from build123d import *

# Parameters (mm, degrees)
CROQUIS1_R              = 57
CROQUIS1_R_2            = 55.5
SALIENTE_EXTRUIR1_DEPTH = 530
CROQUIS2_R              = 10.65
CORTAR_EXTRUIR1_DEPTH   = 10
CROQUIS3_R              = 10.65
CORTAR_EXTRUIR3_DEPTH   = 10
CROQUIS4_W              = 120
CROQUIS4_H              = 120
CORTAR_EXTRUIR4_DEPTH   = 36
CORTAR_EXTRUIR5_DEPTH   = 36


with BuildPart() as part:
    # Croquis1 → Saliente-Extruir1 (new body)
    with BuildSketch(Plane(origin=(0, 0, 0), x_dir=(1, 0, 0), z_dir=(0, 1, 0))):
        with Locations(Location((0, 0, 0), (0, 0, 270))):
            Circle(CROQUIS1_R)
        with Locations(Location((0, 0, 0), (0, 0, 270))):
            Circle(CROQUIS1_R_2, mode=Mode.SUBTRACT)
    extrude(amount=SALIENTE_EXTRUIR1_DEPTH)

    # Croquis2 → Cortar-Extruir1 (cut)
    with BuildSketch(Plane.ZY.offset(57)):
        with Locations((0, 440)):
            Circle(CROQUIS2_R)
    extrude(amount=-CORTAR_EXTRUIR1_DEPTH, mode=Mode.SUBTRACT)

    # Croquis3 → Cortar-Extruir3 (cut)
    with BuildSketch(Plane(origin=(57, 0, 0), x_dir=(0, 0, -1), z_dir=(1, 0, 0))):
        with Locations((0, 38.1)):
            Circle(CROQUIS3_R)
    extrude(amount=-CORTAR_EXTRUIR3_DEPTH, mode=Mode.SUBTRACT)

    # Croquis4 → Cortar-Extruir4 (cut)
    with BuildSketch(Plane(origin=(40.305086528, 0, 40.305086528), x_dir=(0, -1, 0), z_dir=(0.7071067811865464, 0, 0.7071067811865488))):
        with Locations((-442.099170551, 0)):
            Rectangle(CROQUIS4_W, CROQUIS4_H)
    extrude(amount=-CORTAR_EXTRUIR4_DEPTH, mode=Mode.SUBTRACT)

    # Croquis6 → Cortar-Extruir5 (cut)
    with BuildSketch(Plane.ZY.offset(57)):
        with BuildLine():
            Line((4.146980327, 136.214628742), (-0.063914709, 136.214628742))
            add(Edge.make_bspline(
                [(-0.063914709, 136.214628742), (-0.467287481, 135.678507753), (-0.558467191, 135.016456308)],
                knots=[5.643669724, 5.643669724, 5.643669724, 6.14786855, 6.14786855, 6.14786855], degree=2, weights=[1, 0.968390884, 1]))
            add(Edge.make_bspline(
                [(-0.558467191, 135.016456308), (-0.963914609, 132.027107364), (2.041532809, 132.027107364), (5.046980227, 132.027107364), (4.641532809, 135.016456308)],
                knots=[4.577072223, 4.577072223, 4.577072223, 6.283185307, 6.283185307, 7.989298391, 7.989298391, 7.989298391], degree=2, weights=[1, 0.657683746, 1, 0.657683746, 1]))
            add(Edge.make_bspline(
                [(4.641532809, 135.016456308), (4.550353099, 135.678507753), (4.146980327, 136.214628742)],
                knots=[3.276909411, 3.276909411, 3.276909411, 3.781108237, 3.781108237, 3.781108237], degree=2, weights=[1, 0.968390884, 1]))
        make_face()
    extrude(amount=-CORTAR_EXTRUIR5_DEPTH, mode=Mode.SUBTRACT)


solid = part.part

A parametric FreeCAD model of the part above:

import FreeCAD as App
import Part
import Sketcher
from FreeCAD import Vector
Q = App.Units.Quantity


def add_polygon(sketch, points):
    """Adds a closed chain of lines whose ends are joined by coincident constraints."""
    first, n = sketch.GeometryCount, len(points)
    for a, b in zip(points, points[1:] + points[:1]):
        sketch.addGeometry(Part.LineSegment(App.Vector(*a, 0), App.Vector(*b, 0)), False)
    for i in range(n):
        sketch.addConstraint(Sketcher.Constraint("Coincident", first + i, 2, first + (i + 1) % n, 1))

doc = App.newDocument("Part")
params = doc.addObject("Spreadsheet::Sheet", "Params")
for row, (alias, value) in enumerate([
    ("sketch1_diameter", "114 mm"),
    ("sketch1_diameter2", "111 mm"),
    ("pad1_length", "530 mm"),
    ("sketch2_diameter", "21.3 mm"),
    ("pocket1_length", "10 mm"),
    ("sketch3_diameter", "21.3 mm"),
    ("pocket2_length", "10 mm"),
    ("sketch4_width", "120 mm"),
    ("pocket3_length", "36 mm"),
    ("pocket4_length", "36 mm"),
], start=1):
    params.set(f"A{row}", alias)
    params.set(f"B{row}", "=" + value)
    params.setAlias(f"B{row}", alias)

body = doc.addObject("PartDesign::Body", "Body")

# Sketch on XZ plane
sketch1 = body.newObject("Sketcher::SketchObject", "Sketch")
sketch1.AttachmentSupport = (doc.getObject("XZ_Plane"), [""])
sketch1.MapMode = "FlatFace"
sketch1.addGeometry([
    Part.Circle(Vector(0, 0, 0), Vector(0, 0, 1), 57),
    Part.Circle(Vector(0, 0, 0), Vector(0, 0, 1), 56),
], False)
sketch1.addConstraint([
    Sketcher.Constraint("Coincident", 0, 3, -1, 1),
    Sketcher.Constraint("Coincident", 1, 3, -1, 1),
    Sketcher.Constraint("Diameter", 0, Q("114 mm")),
    Sketcher.Constraint("Diameter", 1, Q("111 mm")),
])
sketch1.setExpression("Constraints[2]", "Params.sketch1_diameter")
sketch1.setExpression("Constraints[3]", "Params.sketch1_diameter2")
pad1 = body.newObject("PartDesign::Pad", "Pad")
pad1.Profile = sketch1
pad1.setExpression("Length", "Params.pad1_length")
pad1.Reversed = True

# Sketch on YZ plane
sketch2 = body.newObject("Sketcher::SketchObject", "Sketch001")
sketch2.AttachmentSupport = (doc.getObject("YZ_Plane"), [""])
sketch2.MapMode = "FlatFace"
sketch2.AttachmentOffset = App.Placement(Vector(0, 0, -57), App.Rotation())
sketch2.addGeometry(Part.Circle(Vector(440, 0, 0), Vector(0, 0, 1), 11), False)
sketch2.addConstraint([
    Sketcher.Constraint("PointOnObject", 0, 3, -1),
    Sketcher.Constraint("Diameter", 0, Q("21.3 mm")),
    Sketcher.Constraint("DistanceX", -1, 1, 0, 3, Q("440 mm")),
])
sketch2.setExpression("Constraints[1]", "Params.sketch2_diameter")
pocket1 = body.newObject("PartDesign::Pocket", "Pocket")
pocket1.Profile = sketch2
pocket1.setExpression("Length", "Params.pocket1_length")
pocket1.Reversed = True

# Sketch on YZ plane
sketch3 = body.newObject("Sketcher::SketchObject", "Sketch002")
sketch3.AttachmentSupport = (doc.getObject("YZ_Plane"), [""])
sketch3.MapMode = "FlatFace"
sketch3.AttachmentOffset = App.Placement(Vector(0, 0, 57), App.Rotation())
sketch3.addGeometry(Part.Circle(Vector(38, 0, 0), Vector(0, 0, 1), 11), False)
sketch3.addConstraint([
    Sketcher.Constraint("PointOnObject", 0, 3, -1),
    Sketcher.Constraint("Diameter", 0, Q("21.3 mm")),
    Sketcher.Constraint("DistanceX", -1, 1, 0, 3, Q("38.1 mm")),
])
sketch3.setExpression("Constraints[1]", "Params.sketch3_diameter")
pocket2 = body.newObject("PartDesign::Pocket", "Pocket001")
pocket2.Profile = sketch3
pocket2.setExpression("Length", "Params.pocket2_length")

# Sketch on an angled plane
sketch4 = body.newObject("Sketcher::SketchObject", "Sketch003")
sketch4.Placement = App.Placement(Vector(40.305087, 0, 40.305087), App.Rotation(Vector(0, -1, 0), Vector(0.707106781, 0, -0.707106781), Vector(0.707106781, 0, 0.707106781), "ZXY"))
add_polygon(sketch4, [(-502, 60), (-502, -60), (-382, -60), (-382, 60)])  # lines 0-3
sketch4.addConstraint([
    Sketcher.Constraint("Vertical", 0),
    Sketcher.Constraint("Horizontal", 1),
    Sketcher.Constraint("Vertical", 2),
    Sketcher.Constraint("Horizontal", 3),
    Sketcher.Constraint("Equal", 3, 0),
    Sketcher.Constraint("DistanceX", 1, 1, 1, 2, Q("120 mm")),
    Sketcher.Constraint("DistanceY", 0, 2, -1, 1, Q("60 mm")),
    Sketcher.Constraint("DistanceX", 0, 2, -1, 1, Q("502.099171 mm")),
])
sketch4.setExpression("Constraints[9]", "Params.sketch4_width")
pocket3 = body.newObject("PartDesign::Pocket", "Pocket002")
pocket3.Profile = sketch4
pocket3.setExpression("Length", "Params.pocket3_length")

# Sketch on YZ plane
sketch5 = body.newObject("Sketcher::SketchObject", "Sketch004")
sketch5.AttachmentSupport = (doc.getObject("YZ_Plane"), [""])
sketch5.MapMode = "FlatFace"
sketch5.AttachmentOffset = App.Placement(Vector(0, 0, -57), App.Rotation())
sketch5.addGeometry([
    Part.LineSegment(Vector(136.214629, 4.14698, 0), Vector(136.214629, -0.063915, 0)),
    Part.BSplineCurve([Vector(136.214629, -0.063915, 0), Vector(135.678508, -0.467287, 0), Vector(135.016456, -0.558467, 0)], [3, 3], [5.643669724, 6.14786855], False, 2, [1, 0.968390884, 1], False),
    Part.BSplineCurve([Vector(135.016456, -0.558467, 0), Vector(132.027107, -0.963915, 0), Vector(132.027107, 2.041533, 0), Vector(132.027107, 5.04698, 0), Vector(135.016456, 4.641533, 0)], [3, 2, 3], [4.577072223, 6.283185307, 7.989298391], False, 2, [1, 0.657683746, 1, 0.657683746, 1], False),
    Part.BSplineCurve([Vector(135.016456, 4.641533, 0), Vector(135.678508, 4.550353, 0), Vector(136.214629, 4.14698, 0)], [3, 3], [3.276909411, 3.781108237], False, 2, [1, 0.968390884, 1], False),
], False)
sketch5.addConstraint([
    Sketcher.Constraint("Block", 1),
    Sketcher.Constraint("Block", 2),
    Sketcher.Constraint("Block", 3),
    Sketcher.Constraint("Coincident", 0, 2, 1, 1),
    Sketcher.Constraint("Coincident", 3, 2, 0, 1),
])
pocket4 = body.newObject("PartDesign::Pocket", "Pocket003")
pocket4.Profile = sketch5
pocket4.setExpression("Length", "Params.pocket4_length")
pocket4.Reversed = True

doc.recompute()
